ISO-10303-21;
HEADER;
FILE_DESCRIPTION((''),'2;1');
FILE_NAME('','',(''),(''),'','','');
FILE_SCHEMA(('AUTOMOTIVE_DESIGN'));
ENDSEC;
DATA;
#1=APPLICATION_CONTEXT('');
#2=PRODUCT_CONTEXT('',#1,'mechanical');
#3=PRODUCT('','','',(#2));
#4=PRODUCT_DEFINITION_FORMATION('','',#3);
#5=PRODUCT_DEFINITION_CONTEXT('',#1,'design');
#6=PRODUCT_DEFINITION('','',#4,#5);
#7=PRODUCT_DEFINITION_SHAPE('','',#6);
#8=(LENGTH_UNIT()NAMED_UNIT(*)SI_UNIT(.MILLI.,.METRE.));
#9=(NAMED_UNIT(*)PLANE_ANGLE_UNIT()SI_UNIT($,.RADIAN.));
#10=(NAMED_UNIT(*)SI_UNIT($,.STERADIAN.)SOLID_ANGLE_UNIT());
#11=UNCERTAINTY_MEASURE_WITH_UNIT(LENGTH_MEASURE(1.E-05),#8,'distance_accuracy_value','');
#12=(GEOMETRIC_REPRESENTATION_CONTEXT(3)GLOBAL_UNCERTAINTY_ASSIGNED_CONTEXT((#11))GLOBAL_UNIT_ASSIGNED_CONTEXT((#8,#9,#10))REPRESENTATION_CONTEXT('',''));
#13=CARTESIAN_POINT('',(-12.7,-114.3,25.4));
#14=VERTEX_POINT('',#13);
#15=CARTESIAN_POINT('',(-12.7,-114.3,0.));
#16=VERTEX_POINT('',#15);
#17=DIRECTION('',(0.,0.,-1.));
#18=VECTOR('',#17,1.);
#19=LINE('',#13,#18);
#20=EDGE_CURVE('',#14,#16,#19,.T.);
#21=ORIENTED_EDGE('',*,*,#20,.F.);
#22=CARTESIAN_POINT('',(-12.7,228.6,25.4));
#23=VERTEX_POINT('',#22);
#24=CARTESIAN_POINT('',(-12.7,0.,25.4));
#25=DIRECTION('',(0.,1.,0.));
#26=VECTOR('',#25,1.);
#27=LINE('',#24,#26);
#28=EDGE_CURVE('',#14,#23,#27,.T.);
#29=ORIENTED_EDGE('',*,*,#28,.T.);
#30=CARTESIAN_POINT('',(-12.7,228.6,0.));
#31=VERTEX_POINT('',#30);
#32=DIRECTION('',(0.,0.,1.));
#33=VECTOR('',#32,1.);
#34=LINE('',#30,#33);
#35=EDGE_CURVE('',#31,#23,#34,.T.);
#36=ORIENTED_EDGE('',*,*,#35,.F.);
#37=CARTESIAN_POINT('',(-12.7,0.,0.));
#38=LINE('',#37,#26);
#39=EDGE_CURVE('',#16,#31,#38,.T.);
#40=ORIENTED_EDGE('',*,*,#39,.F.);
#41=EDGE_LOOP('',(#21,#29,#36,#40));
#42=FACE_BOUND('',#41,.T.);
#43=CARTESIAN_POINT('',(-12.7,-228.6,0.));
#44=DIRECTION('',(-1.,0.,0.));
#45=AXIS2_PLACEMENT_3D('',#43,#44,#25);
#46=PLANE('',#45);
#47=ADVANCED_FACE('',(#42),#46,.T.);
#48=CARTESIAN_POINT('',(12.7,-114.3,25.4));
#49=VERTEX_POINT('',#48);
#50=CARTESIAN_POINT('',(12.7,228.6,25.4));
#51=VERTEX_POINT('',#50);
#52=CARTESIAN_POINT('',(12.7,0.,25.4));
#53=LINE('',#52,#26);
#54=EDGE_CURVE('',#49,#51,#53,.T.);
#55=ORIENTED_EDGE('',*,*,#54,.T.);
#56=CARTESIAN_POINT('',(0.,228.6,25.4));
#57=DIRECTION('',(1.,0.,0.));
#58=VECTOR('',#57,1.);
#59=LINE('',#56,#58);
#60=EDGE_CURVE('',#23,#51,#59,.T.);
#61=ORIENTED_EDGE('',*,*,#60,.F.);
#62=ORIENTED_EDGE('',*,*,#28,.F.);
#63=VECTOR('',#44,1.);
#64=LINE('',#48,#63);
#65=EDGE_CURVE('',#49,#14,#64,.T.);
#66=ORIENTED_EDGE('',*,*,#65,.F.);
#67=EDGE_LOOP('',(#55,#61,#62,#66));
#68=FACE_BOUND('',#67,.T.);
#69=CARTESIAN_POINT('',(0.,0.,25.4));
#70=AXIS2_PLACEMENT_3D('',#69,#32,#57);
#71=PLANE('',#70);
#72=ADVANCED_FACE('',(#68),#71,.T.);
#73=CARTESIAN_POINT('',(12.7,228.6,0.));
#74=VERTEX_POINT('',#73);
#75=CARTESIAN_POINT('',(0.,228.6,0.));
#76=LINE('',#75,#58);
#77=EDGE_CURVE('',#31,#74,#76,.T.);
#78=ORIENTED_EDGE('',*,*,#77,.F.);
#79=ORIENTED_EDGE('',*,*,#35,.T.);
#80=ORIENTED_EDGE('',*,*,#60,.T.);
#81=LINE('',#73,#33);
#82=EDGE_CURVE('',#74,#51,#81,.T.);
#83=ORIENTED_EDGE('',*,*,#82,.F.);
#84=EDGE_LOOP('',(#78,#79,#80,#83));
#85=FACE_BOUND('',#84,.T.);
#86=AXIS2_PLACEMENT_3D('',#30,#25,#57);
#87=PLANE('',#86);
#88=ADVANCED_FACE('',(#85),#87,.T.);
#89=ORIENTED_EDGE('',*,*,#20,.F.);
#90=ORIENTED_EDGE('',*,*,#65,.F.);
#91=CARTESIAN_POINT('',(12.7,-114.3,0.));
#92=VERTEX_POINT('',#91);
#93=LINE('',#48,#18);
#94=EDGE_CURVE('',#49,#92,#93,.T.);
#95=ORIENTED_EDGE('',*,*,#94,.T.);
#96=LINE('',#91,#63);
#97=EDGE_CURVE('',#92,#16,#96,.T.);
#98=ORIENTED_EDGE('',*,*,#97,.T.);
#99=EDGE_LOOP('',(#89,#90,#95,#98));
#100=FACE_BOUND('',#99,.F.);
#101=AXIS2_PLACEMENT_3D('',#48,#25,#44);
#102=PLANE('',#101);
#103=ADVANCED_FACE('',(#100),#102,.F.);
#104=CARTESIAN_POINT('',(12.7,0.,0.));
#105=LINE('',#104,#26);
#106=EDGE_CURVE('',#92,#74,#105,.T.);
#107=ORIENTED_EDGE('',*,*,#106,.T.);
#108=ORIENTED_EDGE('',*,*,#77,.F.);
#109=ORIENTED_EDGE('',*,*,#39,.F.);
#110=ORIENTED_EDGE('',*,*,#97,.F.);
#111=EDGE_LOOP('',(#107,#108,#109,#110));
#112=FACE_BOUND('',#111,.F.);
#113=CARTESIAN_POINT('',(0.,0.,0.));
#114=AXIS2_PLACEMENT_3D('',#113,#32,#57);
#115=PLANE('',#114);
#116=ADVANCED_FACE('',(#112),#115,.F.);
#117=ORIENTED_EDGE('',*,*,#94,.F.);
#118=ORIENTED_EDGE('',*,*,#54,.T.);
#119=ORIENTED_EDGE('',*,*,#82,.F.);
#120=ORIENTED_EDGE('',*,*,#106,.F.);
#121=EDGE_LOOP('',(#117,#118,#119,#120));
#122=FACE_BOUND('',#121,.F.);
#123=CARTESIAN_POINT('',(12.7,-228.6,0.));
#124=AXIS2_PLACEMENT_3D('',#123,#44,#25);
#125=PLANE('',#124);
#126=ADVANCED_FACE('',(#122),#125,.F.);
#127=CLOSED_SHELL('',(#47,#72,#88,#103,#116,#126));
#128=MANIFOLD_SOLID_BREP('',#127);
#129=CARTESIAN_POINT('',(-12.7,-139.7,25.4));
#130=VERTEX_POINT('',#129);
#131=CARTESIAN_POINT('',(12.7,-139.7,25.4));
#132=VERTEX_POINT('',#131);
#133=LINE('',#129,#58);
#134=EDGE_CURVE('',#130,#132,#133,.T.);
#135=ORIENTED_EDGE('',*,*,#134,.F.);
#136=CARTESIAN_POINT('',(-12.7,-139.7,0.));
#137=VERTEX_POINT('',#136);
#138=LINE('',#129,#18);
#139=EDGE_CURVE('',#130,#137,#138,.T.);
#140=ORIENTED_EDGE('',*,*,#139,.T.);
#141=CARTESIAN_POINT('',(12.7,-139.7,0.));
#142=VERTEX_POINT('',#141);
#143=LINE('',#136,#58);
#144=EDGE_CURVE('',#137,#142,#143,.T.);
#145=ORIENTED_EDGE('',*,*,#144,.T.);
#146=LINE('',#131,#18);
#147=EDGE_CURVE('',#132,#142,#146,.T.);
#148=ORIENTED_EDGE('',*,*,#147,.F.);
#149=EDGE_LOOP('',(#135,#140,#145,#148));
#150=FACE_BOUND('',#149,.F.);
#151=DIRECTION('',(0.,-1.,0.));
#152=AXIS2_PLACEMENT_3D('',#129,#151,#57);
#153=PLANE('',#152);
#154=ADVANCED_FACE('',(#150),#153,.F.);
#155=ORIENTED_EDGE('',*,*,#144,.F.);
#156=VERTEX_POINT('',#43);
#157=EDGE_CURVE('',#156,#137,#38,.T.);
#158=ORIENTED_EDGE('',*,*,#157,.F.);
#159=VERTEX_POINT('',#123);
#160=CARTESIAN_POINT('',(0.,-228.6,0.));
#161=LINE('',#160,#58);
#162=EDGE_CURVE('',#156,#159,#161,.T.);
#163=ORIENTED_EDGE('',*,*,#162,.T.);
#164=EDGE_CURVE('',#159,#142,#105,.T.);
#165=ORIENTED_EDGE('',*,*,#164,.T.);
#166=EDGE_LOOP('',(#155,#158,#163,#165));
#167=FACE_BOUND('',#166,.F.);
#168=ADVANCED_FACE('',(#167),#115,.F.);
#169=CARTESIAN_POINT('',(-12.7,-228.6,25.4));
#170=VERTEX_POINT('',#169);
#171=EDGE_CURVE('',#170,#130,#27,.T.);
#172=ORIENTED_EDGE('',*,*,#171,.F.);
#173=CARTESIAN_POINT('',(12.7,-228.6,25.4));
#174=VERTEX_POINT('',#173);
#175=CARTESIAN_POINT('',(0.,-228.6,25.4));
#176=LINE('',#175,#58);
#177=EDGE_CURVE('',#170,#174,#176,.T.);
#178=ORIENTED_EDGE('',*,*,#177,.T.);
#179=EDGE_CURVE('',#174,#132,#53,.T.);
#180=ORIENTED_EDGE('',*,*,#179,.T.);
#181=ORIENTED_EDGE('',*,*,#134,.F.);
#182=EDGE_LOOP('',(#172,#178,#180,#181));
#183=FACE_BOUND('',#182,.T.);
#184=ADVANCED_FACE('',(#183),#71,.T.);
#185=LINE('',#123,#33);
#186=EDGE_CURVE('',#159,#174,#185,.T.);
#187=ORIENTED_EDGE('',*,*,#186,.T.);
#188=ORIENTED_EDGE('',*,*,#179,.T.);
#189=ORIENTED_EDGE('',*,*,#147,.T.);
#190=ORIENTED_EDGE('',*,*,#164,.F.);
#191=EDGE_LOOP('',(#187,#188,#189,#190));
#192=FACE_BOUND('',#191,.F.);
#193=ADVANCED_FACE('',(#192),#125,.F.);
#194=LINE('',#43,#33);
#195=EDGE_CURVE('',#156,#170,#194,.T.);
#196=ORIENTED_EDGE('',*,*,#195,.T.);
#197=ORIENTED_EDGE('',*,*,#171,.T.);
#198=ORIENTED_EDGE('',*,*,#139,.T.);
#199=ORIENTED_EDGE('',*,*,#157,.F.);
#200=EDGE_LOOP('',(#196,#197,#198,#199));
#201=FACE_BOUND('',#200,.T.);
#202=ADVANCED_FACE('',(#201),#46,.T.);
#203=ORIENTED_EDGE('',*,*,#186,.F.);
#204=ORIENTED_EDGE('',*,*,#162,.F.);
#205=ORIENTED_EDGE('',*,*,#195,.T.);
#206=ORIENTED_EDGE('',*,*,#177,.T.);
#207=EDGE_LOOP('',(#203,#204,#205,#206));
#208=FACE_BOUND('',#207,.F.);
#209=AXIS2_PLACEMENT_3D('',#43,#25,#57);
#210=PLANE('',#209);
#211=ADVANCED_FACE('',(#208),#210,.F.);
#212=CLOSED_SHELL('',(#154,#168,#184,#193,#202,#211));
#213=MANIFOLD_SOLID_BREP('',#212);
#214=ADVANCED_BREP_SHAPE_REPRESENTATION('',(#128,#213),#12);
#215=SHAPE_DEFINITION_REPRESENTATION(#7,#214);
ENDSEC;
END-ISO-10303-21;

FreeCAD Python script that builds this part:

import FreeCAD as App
import Part
import Sketcher
Q = App.Units.Quantity

doc = App.newDocument("Part")
body = doc.addObject("PartDesign::Body", "Body")
body.AllowCompound = True

sketch1 = body.newObject("Sketcher::SketchObject", "Sketch")
sketch1.AttachmentSupport = (doc.getObject("XY_Plane"), [""])
sketch1.MapMode = "FlatFace"
sketch1.addGeometry(Part.LineSegment(App.Vector(-13, 229, 0), App.Vector(-13, -229, 0)), False)
sketch1.addGeometry(Part.LineSegment(App.Vector(-13, -229, 0), App.Vector(13, -229, 0)), False)
sketch1.addGeometry(Part.LineSegment(App.Vector(13, -229, 0), App.Vector(13, 229, 0)), False)
sketch1.addGeometry(Part.LineSegment(App.Vector(13, 229, 0), App.Vector(-13, 229, 0)), False)
sketch1.addConstraint(Sketcher.Constraint("Coincident", 0, 2, 1, 1))
sketch1.addConstraint(Sketcher.Constraint("Coincident", 1, 2, 2, 1))
sketch1.addConstraint(Sketcher.Constraint("Coincident", 2, 2, 3, 1))
sketch1.addConstraint(Sketcher.Constraint("Coincident", 3, 2, 0, 1))
sketch1.addConstraint(Sketcher.Constraint("Vertical", 0))
sketch1.addConstraint(Sketcher.Constraint("Horizontal", 1))
sketch1.addConstraint(Sketcher.Constraint("Vertical", 2))
sketch1.addConstraint(Sketcher.Constraint("Horizontal", 3))
sketch1.addConstraint(Sketcher.Constraint("Symmetric", 0, 2, 2, 2, -1, 1))
sketch1.addConstraint(Sketcher.Constraint("DistanceX", 1, 1, 1, 2, Q("1 in")))
sketch1.addConstraint(Sketcher.Constraint("DistanceY", 0, 2, 0, 1, Q("18 in")))
pad1 = body.newObject("PartDesign::Pad", "Pad")
pad1.Profile = sketch1
pad1.Length = Q("1 in")

sketch2 = body.newObject("Sketcher::SketchObject", "Sketch001")
sketch2.AttachmentSupport = (doc.getObject("XY_Plane"), [""])
sketch2.MapMode = "FlatFace"
sketch2.AttachmentOffset = App.Placement(App.Vector(0, 0, 1 * 25.4), App.Rotation())
sketch2.addGeometry(Part.LineSegment(App.Vector(13, -140, 0), App.Vector(13, -114, 0)), False)
sketch2.addGeometry(Part.LineSegment(App.Vector(13, -114, 0), App.Vector(-13, -114, 0)), False)
sketch2.addGeometry(Part.LineSegment(App.Vector(-13, -114, 0), App.Vector(-13, -140, 0)), False)
sketch2.addGeometry(Part.LineSegment(App.Vector(-13, -140, 0), App.Vector(13, -140, 0)), False)
sketch2.addConstraint(Sketcher.Constraint("Coincident", 0, 2, 1, 1))
sketch2.addConstraint(Sketcher.Constraint("Coincident", 1, 2, 2, 1))
sketch2.addConstraint(Sketcher.Constraint("Coincident", 2, 2, 3, 1))
sketch2.addConstraint(Sketcher.Constraint("Coincident", 3, 2, 0, 1))
sketch2.addConstraint(Sketcher.Constraint("Vertical", 0))
sketch2.addConstraint(Sketcher.Constraint("Horizontal", 1))
sketch2.addConstraint(Sketcher.Constraint("Vertical", 2))
sketch2.addConstraint(Sketcher.Constraint("Horizontal", 3))
sketch2.addConstraint(Sketcher.Constraint("Equal", 3, 0))
sketch2.addConstraint(Sketcher.Constraint("DistanceX", 1, 2, 1, 1, Q("1 in")))
sketch2.addConstraint(Sketcher.Constraint("DistanceX", -1, 1, 0, 2, Q("0.5 in")))
sketch2.addConstraint(Sketcher.Constraint("DistanceY", 0, 2, -1, 1, Q("4.5 in")))
pocket1 = body.newObject("PartDesign::Pocket", "Pocket")
pocket1.Profile = sketch2
pocket1.Length = Q("1 in")

doc.recompute()
